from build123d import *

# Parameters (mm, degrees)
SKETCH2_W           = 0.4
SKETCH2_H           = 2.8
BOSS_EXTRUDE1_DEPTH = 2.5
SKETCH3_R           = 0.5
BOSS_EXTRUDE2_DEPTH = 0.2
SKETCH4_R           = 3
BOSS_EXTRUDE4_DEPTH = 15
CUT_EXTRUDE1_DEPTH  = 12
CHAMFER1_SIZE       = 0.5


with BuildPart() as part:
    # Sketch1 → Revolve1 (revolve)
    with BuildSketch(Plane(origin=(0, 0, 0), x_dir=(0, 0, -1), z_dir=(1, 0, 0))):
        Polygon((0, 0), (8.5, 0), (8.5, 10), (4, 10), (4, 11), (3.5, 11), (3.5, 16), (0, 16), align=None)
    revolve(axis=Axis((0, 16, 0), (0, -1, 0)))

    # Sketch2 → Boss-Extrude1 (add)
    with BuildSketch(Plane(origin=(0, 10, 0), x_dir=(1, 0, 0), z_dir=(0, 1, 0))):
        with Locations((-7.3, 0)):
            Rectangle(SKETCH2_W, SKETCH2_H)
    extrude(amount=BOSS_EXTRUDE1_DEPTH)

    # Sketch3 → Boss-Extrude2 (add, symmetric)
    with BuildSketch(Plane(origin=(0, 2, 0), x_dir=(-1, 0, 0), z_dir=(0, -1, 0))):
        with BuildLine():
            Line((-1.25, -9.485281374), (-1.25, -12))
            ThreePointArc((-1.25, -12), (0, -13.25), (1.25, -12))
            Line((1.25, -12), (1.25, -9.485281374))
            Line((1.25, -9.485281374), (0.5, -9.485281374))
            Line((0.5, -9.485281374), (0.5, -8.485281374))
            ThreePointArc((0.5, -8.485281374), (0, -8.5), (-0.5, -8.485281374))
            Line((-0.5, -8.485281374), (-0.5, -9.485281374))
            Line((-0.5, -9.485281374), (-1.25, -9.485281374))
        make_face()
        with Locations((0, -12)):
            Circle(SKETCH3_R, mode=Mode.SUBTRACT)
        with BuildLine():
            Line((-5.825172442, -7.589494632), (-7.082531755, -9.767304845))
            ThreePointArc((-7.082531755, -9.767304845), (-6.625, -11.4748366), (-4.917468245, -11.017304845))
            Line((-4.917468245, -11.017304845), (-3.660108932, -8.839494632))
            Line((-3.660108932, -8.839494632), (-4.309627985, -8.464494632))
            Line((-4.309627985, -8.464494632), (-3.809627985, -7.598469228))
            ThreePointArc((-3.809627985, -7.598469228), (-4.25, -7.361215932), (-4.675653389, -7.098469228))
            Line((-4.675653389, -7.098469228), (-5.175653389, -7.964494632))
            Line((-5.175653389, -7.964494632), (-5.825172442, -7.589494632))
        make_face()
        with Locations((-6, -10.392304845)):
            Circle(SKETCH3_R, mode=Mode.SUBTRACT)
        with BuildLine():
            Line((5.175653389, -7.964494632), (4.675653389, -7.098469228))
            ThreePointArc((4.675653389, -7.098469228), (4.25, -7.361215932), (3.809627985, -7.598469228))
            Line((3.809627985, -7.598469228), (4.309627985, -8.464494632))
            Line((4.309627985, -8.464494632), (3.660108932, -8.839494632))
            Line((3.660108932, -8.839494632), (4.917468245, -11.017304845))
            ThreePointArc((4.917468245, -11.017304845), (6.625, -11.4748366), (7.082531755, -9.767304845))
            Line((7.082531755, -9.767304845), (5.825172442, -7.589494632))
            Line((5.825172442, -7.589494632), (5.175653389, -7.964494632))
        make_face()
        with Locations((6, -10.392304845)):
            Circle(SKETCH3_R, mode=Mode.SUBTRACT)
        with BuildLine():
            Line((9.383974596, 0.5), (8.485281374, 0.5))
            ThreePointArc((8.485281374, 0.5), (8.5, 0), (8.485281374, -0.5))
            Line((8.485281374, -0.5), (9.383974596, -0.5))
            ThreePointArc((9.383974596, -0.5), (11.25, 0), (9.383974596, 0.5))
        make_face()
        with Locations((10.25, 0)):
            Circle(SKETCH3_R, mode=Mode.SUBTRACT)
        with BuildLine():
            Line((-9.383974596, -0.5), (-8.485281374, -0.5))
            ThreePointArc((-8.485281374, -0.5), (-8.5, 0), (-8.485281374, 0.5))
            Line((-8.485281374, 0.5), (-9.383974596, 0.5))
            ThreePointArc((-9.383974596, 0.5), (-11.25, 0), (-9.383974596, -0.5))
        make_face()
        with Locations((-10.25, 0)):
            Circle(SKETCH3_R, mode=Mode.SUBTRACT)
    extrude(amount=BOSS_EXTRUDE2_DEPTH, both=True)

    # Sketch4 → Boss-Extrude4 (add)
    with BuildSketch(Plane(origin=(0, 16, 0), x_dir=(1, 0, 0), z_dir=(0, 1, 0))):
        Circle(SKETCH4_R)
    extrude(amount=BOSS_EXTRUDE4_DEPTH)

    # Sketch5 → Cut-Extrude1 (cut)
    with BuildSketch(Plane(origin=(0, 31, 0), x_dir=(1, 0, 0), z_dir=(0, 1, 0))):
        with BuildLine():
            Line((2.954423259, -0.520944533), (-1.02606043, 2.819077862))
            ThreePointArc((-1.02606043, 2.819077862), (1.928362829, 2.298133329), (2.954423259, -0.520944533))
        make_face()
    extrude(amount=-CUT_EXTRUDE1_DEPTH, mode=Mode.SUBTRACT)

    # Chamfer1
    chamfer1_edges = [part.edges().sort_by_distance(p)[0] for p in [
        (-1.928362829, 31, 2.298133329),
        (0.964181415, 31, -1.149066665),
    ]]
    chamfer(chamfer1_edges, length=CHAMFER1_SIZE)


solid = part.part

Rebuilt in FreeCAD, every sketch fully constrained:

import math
import FreeCAD as App
import Part
import Sketcher
Q = App.Units.Quantity


def edges_at(feature, points):
    """Names of the edges that pass closest to the given points."""
    edges = feature.Shape.Edges
    near = lambda p: min(range(len(edges)), key=lambda i: edges[i].distToShape(Part.Vertex(*p))[0])
    return sorted({f"Edge{near(p) + 1}" for p in points})


def add_polygon(sketch, points):
    """Adds a closed chain of lines whose ends are joined by coincident constraints."""
    first, n = sketch.GeometryCount, len(points)
    for a, b in zip(points, points[1:] + points[:1]):
        sketch.addGeometry(Part.LineSegment(App.Vector(*a, 0), App.Vector(*b, 0)), False)
    for i in range(n):
        sketch.addConstraint(Sketcher.Constraint("Coincident", first + i, 2, first + (i + 1) % n, 1))

doc = App.newDocument("Part")
body = doc.addObject("PartDesign::Body", "Body")

sketch1 = body.newObject("Sketcher::SketchObject", "Sketch")
sketch1.AttachmentSupport = (doc.getObject("YZ_Plane"), [""])
sketch1.MapMode = "FlatFace"
add_polygon(sketch1, [(0, 0), (0, -8.5), (10, -8.5), (10, -4), (11, -4), (11, -3.5), (16, -3.5), (16, 0)])
sketch1.addConstraint([
    Sketcher.Constraint("Vertical", 0),
    Sketcher.Constraint("Horizontal", 1),
    Sketcher.Constraint("Vertical", 2),
    Sketcher.Constraint("Horizontal", 3),
    Sketcher.Constraint("Vertical", 4),
    Sketcher.Constraint("Horizontal", 5),
    Sketcher.Constraint("Vertical", 6),
    Sketcher.Constraint("Horizontal", 7),
    Sketcher.Constraint("Coincident", 7, 2, -1, 1),
    Sketcher.Constraint("DistanceX", 1, 1, 1, 2, 10.0),
    Sketcher.Constraint("DistanceX", 3, 1, 3, 2, 1.0),
    Sketcher.Constraint("DistanceX", 5, 1, 5, 2, 5.0),
    Sketcher.Constraint("DistanceY", 0, 2, 0, 1, 8.5),
    Sketcher.Constraint("DistanceY", 2, 1, 2, 2, 4.5),
    Sketcher.Constraint("DistanceY", 4, 1, 4, 2, 0.5),
])
revolution = body.newObject("PartDesign::Revolution", "Revolution")
revolution.Profile = sketch1
revolution.ReferenceAxis = (sketch1, ["H_Axis"])
revolution.Angle = 360

sketch2 = body.newObject("Sketcher::SketchObject", "Sketch001")
sketch2.AttachmentSupport = (doc.getObject("XZ_Plane"), [""])
sketch2.MapMode = "FlatFace"
sketch2.AttachmentOffset = App.Placement(App.Vector(0, 0, -10), App.Rotation())
add_polygon(sketch2, [(-7.5, -1.4), (-7.5, 1.4), (-7.1, 1.4), (-7.1, -1.4)])
sketch2.addConstraint([
    Sketcher.Constraint("Vertical", 0),
    Sketcher.Constraint("Horizontal", 1),
    Sketcher.Constraint("Vertical", 2),
    Sketcher.Constraint("Horizontal", 3),
    Sketcher.Constraint("DistanceX", 1, 1, 1, 2, 0.4),
    Sketcher.Constraint("DistanceY", 0, 1, 0, 2, 2.8),
    Sketcher.Constraint("DistanceX", 0, 2, -1, 1, 7.5),
    Sketcher.Constraint("DistanceY", -1, 1, 0, 2, 1.4),
])
pad1 = body.newObject("PartDesign::Pad", "Pad")
pad1.Profile = sketch2
pad1.Length = 2.5
pad1.Reversed = True

sketch3 = body.newObject("Sketcher::SketchObject", "Sketch002")
sketch3.AttachmentSupport = (doc.getObject("XZ_Plane"), [""])
sketch3.MapMode = "FlatFace"
sketch3.AttachmentOffset = App.Placement(App.Vector(0, 0, -2), App.Rotation())
sketch3.addGeometry([
    Part.LineSegment(App.Vector(1.25, 9.485281, 0), App.Vector(1.25, 12, 0)),
    Part.ArcOfCircle(Part.Circle(App.Vector(0, 12, 0), App.Vector(0, 0, 1), 1.25), math.radians(0), math.radians(180)),
    Part.LineSegment(App.Vector(-1.25, 12, 0), App.Vector(-1.25, 9.485281, 0)),
    Part.LineSegment(App.Vector(-1.25, 9.485281, 0), App.Vector(-0.5, 9.485281, 0)),
    Part.LineSegment(App.Vector(-0.5, 9.485281, 0), App.Vector(-0.5, 8.485281, 0)),
    Part.ArcOfCircle(Part.Circle(App.Vector(0, 0, 0), App.Vector(0, 0, 1), 8.5), math.radians(86.627713), math.radians(93.372287)),
    Part.LineSegment(App.Vector(0.5, 8.485281, 0), App.Vector(0.5, 9.485281, 0)),
    Part.LineSegment(App.Vector(0.5, 9.485281, 0), App.Vector(1.25, 9.485281, 0)),
    Part.Circle(App.Vector(0, 12, 0), App.Vector(0, 0, 1), 0.5),
    Part.LineSegment(App.Vector(5.825172, 7.589495, 0), App.Vector(7.082532, 9.767305, 0)),
    Part.ArcOfCircle(Part.Circle(App.Vector(6, 10.392305, 0), App.Vector(0, 0, 1), 1.25), math.radians(-30), math.radians(150)),
    Part.LineSegment(App.Vector(4.917468, 11.017305, 0), App.Vector(3.660109, 8.839495, 0)),
    Part.LineSegment(App.Vector(3.660109, 8.839495, 0), App.Vector(4.309628, 8.464495, 0)),
    Part.LineSegment(App.Vector(4.309628, 8.464495, 0), App.Vector(3.809628, 7.598469, 0)),
    Part.ArcOfCircle(Part.Circle(App.Vector(0, 0, 0), App.Vector(0, 0, 1), 8.5), math.radians(56.627713), math.radians(63.372287)),
    Part.LineSegment(App.Vector(4.675653, 7.098469, 0), App.Vector(5.175653, 7.964495, 0)),
    Part.LineSegment(App.Vector(5.175653, 7.964495, 0), App.Vector(5.825172, 7.589495, 0)),
    Part.Circle(App.Vector(6, 10.392305, 0), App.Vector(0, 0, 1), 0.5),
    Part.LineSegment(App.Vector(-5.175653, 7.964495, 0), App.Vector(-4.675653, 7.098469, 0)),
    Part.ArcOfCircle(Part.Circle(App.Vector(0, 0, 0), App.Vector(0, 0, 1), 8.5), math.radians(116.627713), math.radians(123.372287)),
    Part.LineSegment(App.Vector(-3.809628, 7.598469, 0), App.Vector(-4.309628, 8.464495, 0)),
    Part.LineSegment(App.Vector(-4.309628, 8.464495, 0), App.Vector(-3.660109, 8.839495, 0)),
    Part.LineSegment(App.Vector(-3.660109, 8.839495, 0), App.Vector(-4.917468, 11.017305, 0)),
    Part.ArcOfCircle(Part.Circle(App.Vector(-6, 10.392305, 0), App.Vector(0, 0, 1), 1.25), math.radians(30), math.radians(210)),
    Part.LineSegment(App.Vector(-7.082532, 9.767305, 0), App.Vector(-5.825172, 7.589495, 0)),
    Part.LineSegment(App.Vector(-5.825172, 7.589495, 0), App.Vector(-5.175653, 7.964495, 0)),
    Part.Circle(App.Vector(-6, 10.392305, 0), App.Vector(0, 0, 1), 0.5),
    Part.LineSegment(App.Vector(-9.383975, -0.5, 0), App.Vector(-8.485281, -0.5, 0)),
    Part.ArcOfCircle(Part.Circle(App.Vector(0, 0, 0), App.Vector(0, 0, 1), 8.5), math.radians(176.627713), math.radians(183.372287)),
    Part.LineSegment(App.Vector(-8.485281, 0.5, 0), App.Vector(-9.383975, 0.5, 0)),
    Part.ArcOfCircle(Part.Circle(App.Vector(-10.25, 0, 0), App.Vector(0, 0, 1), 1), math.radians(30), math.radians(330)),
    Part.Circle(App.Vector(-10.25, 0, 0), App.Vector(0, 0, 1), 0.5),
    Part.LineSegment(App.Vector(9.383975, 0.5, 0), App.Vector(8.485281, 0.5, 0)),
    Part.ArcOfCircle(Part.Circle(App.Vector(0, 0, 0), App.Vector(0, 0, 1), 8.5), math.radians(-3.372287), math.radians(3.372287)),
    Part.LineSegment(App.Vector(8.485281, -0.5, 0), App.Vector(9.383975, -0.5, 0)),
    Part.ArcOfCircle(Part.Circle(App.Vector(10.25, 0, 0), App.Vector(0, 0, 1), 1), math.radians(-150), math.radians(150)),
    Part.Circle(App.Vector(10.25, 0, 0), App.Vector(0, 0, 1), 0.5),
], False)
sketch3.addConstraint([
    Sketcher.Constraint("Tangent", 0, 2, 1, 1),
    Sketcher.Constraint("Tangent", 1, 2, 2, 1),
    Sketcher.Constraint("Coincident", 2, 2, 3, 1),
    Sketcher.Constraint("Coincident", 3, 2, 4, 1),
    Sketcher.Constraint("Coincident", 4, 2, 5, 2),
    Sketcher.Constraint("Coincident", 5, 1, 6, 1),
    Sketcher.Constraint("Coincident", 6, 2, 7, 1),
    Sketcher.Constraint("Coincident", 7, 2, 0, 1),
    Sketcher.Constraint("Tangent", 9, 2, 10, 1),
    Sketcher.Constraint("Tangent", 10, 2, 11, 1),
    Sketcher.Constraint("Coincident", 11, 2, 12, 1),
    Sketcher.Constraint("Coincident", 12, 2, 13, 1),
    Sketcher.Constraint("Coincident", 13, 2, 14, 2),
    Sketcher.Constraint("Coincident", 14, 1, 15, 1),
    Sketcher.Constraint("Coincident", 15, 2, 16, 1),
    Sketcher.Constraint("Coincident", 16, 2, 9, 1),
    Sketcher.Constraint("Coincident", 18, 2, 19, 2),
    Sketcher.Constraint("Coincident", 19, 1, 20, 1),
    Sketcher.Constraint("Coincident", 20, 2, 21, 1),
    Sketcher.Constraint("Coincident", 21, 2, 22, 1),
    Sketcher.Constraint("Tangent", 22, 2, 23, 1),
    Sketcher.Constraint("Tangent", 23, 2, 24, 1),
    Sketcher.Constraint("Coincident", 24, 2, 25, 1),
    Sketcher.Constraint("Coincident", 25, 2, 18, 1),
    Sketcher.Constraint("Coincident", 27, 2, 28, 2),
    Sketcher.Constraint("Coincident", 28, 1, 29, 1),
    Sketcher.Constraint("Coincident", 29, 2, 30, 1),
    Sketcher.Constraint("Coincident", 30, 2, 27, 1),
    Sketcher.Constraint("Coincident", 32, 2, 33, 2),
    Sketcher.Constraint("Coincident", 33, 1, 34, 1),
    Sketcher.Constraint("Coincident", 34, 2, 35, 1),
    Sketcher.Constraint("Coincident", 35, 2, 32, 1),
    Sketcher.Constraint("Vertical", 0),
    Sketcher.Constraint("Vertical", 2),
    Sketcher.Constraint("Horizontal", 3),
    Sketcher.Constraint("Vertical", 4),
    Sketcher.Constraint("Vertical", 6),
    Sketcher.Constraint("Horizontal", 7),
    Sketcher.Constraint("Horizontal", 27),
    Sketcher.Constraint("Horizontal", 29),
    Sketcher.Constraint("Horizontal", 32),
    Sketcher.Constraint("Horizontal", 34),
    Sketcher.Constraint("Coincident", 5, 3, -1, 1),
    Sketcher.Constraint("Coincident", 14, 3, -1, 1),
    Sketcher.Constraint("Coincident", 19, 3, -1, 1),
    Sketcher.Constraint("Coincident", 28, 3, -1, 1),
    Sketcher.Constraint("Coincident", 33, 3, -1, 1),
    Sketcher.Constraint("Coincident", 8, 3, 1, 3),
    Sketcher.Constraint("Coincident", 17, 3, 10, 3),
    Sketcher.Constraint("Coincident", 26, 3, 23, 3),
    Sketcher.Constraint("Coincident", 31, 3, 30, 3),
    Sketcher.Constraint("Coincident", 36, 3, 35, 3),
    Sketcher.Constraint("Equal", 1, 10),
    Sketcher.Constraint("Equal", 5, 14),
    Sketcher.Constraint("Equal", 8, 17),
    Sketcher.Constraint("Equal", 14, 19),
    Sketcher.Constraint("Equal", 10, 23),
    Sketcher.Constraint("Equal", 17, 26),
    Sketcher.Constraint("Equal", 19, 28),
    Sketcher.Constraint("Equal", 26, 31),
    Sketcher.Constraint("Equal", 28, 33),
    Sketcher.Constraint("Equal", 30, 35),
    Sketcher.Constraint("Equal", 31, 36),
    Sketcher.Constraint("Symmetric", 30, 3, 35, 3, -1, 1),
    Sketcher.Constraint("Symmetric", 10, 3, 23, 3, -2),
    Sketcher.Constraint("Symmetric", 3, 2, 6, 2, -2),
    Sketcher.Constraint("Symmetric", 12, 2, 20, 2, -2),
    Sketcher.Constraint("Symmetric", 11, 2, 21, 2, -2),
    Sketcher.Constraint("Symmetric", 16, 2, 24, 2, -2),
    Sketcher.Constraint("Symmetric", 15, 2, 25, 2, -2),
    Sketcher.Constraint("Symmetric", 30, 2, 34, 2, -2),
    Sketcher.Constraint("PointOnObject", 1, 3, -2),
    Sketcher.Constraint("Parallel", 9, 11),
    Sketcher.Constraint("Perpendicular", 11, 12),
    Sketcher.Constraint("Perpendicular", 12, 13),
    Sketcher.Constraint("Parallel", 13, 15),
    Sketcher.Constraint("Perpendicular", 15, 16),
    Sketcher.Constraint("Parallel", 18, 20),
    Sketcher.Constraint("Perpendicular", 20, 21),
    Sketcher.Constraint("Horizontal", 29, 2, 32, 2),
    Sketcher.Constraint("Vertical", 27, 2, 28, 1),
    Sketcher.Constraint("Equal", 9, 11),
    Sketcher.Constraint("Equal", 13, 15),
    Sketcher.Constraint("Equal", 12, 16),
    Sketcher.Constraint("Diameter", 8, 1.0),
    Sketcher.Constraint("Radius", 30, 1.0),
    Sketcher.Constraint("Radius", 5, 8.5),
    Sketcher.Constraint("DistanceY", 4, 2, 4, 1, 1.0),
    Sketcher.Constraint("Angle", 9, Q("60 deg")),
    Sketcher.Constraint("Radius", 1, 1.25),
    Sketcher.Constraint("Distance", 13, 1.0),
    Sketcher.Constraint("DistanceY", -1, 1, 1, 3, 12.0),
    Sketcher.Constraint("DistanceX", -1, 1, 10, 3, 6.0),
    Sketcher.Constraint("DistanceX", 4, 2, 5, 1, 1.0),
    Sketcher.Constraint("DistanceY", 27, 2, 28, 1, 1.0),
    Sketcher.Constraint("DistanceY", 14, 1, 13, 2, 0.5),
    Sketcher.Constraint("DistanceX", 30, 3, -1, 1, 10.25),
])
pad2 = body.newObject("PartDesign::Pad", "Pad001")
pad2.Profile = sketch3
pad2.Length = 0.4
pad2.Midplane = True

sketch4 = body.newObject("Sketcher::SketchObject", "Sketch003")
sketch4.AttachmentSupport = (doc.getObject("XZ_Plane"), [""])
sketch4.MapMode = "FlatFace"
sketch4.AttachmentOffset = App.Placement(App.Vector(0, 0, -16), App.Rotation())
sketch4.addGeometry(Part.Circle(App.Vector(0, 0, 0), App.Vector(0, 0, 1), 3), False)
sketch4.addConstraint([
    Sketcher.Constraint("Coincident", 0, 3, -1, 1),
    Sketcher.Constraint("Diameter", 0, 6.0),
])
pad3 = body.newObject("PartDesign::Pad", "Pad002")
pad3.Profile = sketch4
pad3.Length = 15
pad3.Reversed = True

sketch5 = body.newObject("Sketcher::SketchObject", "Sketch004")
sketch5.AttachmentSupport = (doc.getObject("XZ_Plane"), [""])
sketch5.MapMode = "FlatFace"
sketch5.AttachmentOffset = App.Placement(App.Vector(0, 0, -31), App.Rotation())
sketch5.addGeometry([
    Part.LineSegment(App.Vector(-1.02606, -2.819078, 0), App.Vector(2.954423, 0.520945, 0)),
    Part.ArcOfCircle(Part.Circle(App.Vector(0, 0, 0), App.Vector(0, 0, 1), 3), math.radians(-110), math.radians(10)),
], False)
sketch5.addConstraint([
    Sketcher.Constraint("Coincident", 0, 1, 1, 1),
    Sketcher.Constraint("Coincident", 1, 2, 0, 2),
    Sketcher.Constraint("Coincident", 1, 3, -1, 1),
    Sketcher.Constraint("Radius", 1, 3.0),
    Sketcher.Constraint("Angle", 0, Q("40 deg")),
    Sketcher.Constraint("DistanceX", 0, 1, -1, 1, 1.02606),
])
pocket1 = body.newObject("PartDesign::Pocket", "Pocket")
pocket1.Profile = sketch5
pocket1.Length = 12
pocket1.Reversed = True
doc.recompute()

chamfer = body.newObject("PartDesign::Chamfer", "Chamfer")
chamfer.Base = (pocket1, edges_at(pocket1, [(-1.928, 31, 2.298), (0.964, 31, -1.149)]))
chamfer.Size = 0.5

doc.recompute()
